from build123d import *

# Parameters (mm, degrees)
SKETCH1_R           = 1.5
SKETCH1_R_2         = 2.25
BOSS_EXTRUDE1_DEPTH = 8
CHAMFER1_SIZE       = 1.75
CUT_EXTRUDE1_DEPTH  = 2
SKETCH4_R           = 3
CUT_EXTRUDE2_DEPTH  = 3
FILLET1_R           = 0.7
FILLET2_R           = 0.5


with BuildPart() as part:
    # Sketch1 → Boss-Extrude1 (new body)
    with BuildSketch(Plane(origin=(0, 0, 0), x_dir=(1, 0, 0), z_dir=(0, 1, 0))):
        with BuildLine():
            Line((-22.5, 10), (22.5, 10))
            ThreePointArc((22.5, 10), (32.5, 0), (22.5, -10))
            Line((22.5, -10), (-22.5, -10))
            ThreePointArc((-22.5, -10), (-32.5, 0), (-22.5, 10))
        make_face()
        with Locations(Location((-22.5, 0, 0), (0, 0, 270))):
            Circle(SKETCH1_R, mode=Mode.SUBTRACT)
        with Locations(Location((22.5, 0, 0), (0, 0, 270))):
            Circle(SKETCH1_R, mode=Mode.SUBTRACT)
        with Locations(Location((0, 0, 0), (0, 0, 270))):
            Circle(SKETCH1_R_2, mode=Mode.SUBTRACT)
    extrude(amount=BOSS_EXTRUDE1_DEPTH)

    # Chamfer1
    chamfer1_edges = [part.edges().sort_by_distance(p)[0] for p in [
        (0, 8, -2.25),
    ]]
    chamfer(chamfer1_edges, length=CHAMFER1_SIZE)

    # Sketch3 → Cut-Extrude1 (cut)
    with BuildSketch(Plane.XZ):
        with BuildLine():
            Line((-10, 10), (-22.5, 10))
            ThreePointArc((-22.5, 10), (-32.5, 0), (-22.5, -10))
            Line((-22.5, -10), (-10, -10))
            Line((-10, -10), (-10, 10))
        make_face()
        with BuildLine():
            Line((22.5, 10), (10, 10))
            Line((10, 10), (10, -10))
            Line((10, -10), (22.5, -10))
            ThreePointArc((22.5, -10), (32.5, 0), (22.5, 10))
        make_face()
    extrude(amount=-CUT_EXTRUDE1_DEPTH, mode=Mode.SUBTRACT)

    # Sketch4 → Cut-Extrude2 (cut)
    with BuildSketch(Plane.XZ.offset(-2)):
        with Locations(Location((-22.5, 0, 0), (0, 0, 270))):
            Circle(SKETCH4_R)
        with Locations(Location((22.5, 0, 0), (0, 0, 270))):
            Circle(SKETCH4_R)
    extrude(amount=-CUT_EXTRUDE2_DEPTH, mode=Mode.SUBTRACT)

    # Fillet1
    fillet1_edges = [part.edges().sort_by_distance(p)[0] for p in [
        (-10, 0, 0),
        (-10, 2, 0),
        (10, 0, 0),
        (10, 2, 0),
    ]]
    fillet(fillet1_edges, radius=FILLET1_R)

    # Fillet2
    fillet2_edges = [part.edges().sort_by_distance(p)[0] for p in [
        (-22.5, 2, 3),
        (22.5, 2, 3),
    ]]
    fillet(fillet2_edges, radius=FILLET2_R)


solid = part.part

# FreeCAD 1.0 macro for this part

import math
import FreeCAD as App
import Part
import Sketcher

V = App.Vector
Q = App.Units.Quantity


def edges_at(feature, points):
    """Names of the edges that pass closest to the given points."""
    edges = feature.Shape.Edges
    near = lambda p: min(range(len(edges)), key=lambda i: edges[i].distToShape(Part.Vertex(*p))[0])
    return sorted({f"Edge{near(p) + 1}" for p in points})

doc = App.newDocument("Part")
body = doc.addObject("PartDesign::Body", "Body")

# Sketch on XZ plane
sketch1 = body.newObject("Sketcher::SketchObject", "Sketch")
sketch1.AttachmentSupport = (doc.getObject("XZ_Plane"), [""])
sketch1.MapMode = "FlatFace"
sketch1.addGeometry(Part.LineSegment(V(22.5, -10, 0), V(-22.5, -10, 0)), False)
sketch1.addGeometry(Part.ArcOfCircle(Part.Circle(V(-22.5, 0, 0), V(0, 0, 1), 10), math.radians(90), math.radians(270)), False)
sketch1.addGeometry(Part.LineSegment(V(-22.5, 10, 0), V(22.5, 10, 0)), False)
sketch1.addGeometry(Part.ArcOfCircle(Part.Circle(V(22.5, 0, 0), V(0, 0, 1), 10), math.radians(-90), math.radians(90)), False)
sketch1.addGeometry(Part.Circle(V(22.5, 0, 0), V(0, 0, 1), 1.5), False)
sketch1.addGeometry(Part.Circle(V(0, 0, 0), V(0, 0, 1), 2.25), False)
sketch1.addGeometry(Part.Circle(V(-22.5, 0, 0), V(0, 0, 1), 1.5), False)
sketch1.addConstraint(Sketcher.Constraint("Tangent", 0, 2, 1, 2))
sketch1.addConstraint(Sketcher.Constraint("Tangent", 1, 1, 2, 1))
sketch1.addConstraint(Sketcher.Constraint("Tangent", 2, 2, 3, 2))
sketch1.addConstraint(Sketcher.Constraint("Tangent", 3, 1, 0, 1))
sketch1.addConstraint(Sketcher.Constraint("Horizontal", 0))
sketch1.addConstraint(Sketcher.Constraint("Horizontal", 2))
sketch1.addConstraint(Sketcher.Constraint("Coincident", 5, 3, -1, 1))
sketch1.addConstraint(Sketcher.Constraint("Coincident", 4, 3, 3, 3))
sketch1.addConstraint(Sketcher.Constraint("Coincident", 6, 3, 1, 3))
sketch1.addConstraint(Sketcher.Constraint("Equal", 4, 6))
sketch1.addConstraint(Sketcher.Constraint("Symmetric", 1, 3, 3, 3, -1, 1))
sketch1.addConstraint(Sketcher.Constraint("Diameter", 4, Q("3 mm")))
sketch1.addConstraint(Sketcher.Constraint("Radius", 1, Q("10 mm")))
sketch1.addConstraint(Sketcher.Constraint("Diameter", 5, Q("4.5 mm")))
sketch1.addConstraint(Sketcher.Constraint("DistanceX", 0, 2, 0, 1, Q("45 mm")))
pad1 = body.newObject("PartDesign::Pad", "Pad")
pad1.Profile = sketch1
pad1.Length = 8
pad1.Reversed = True
doc.recompute()

chamfer = body.newObject("PartDesign::Chamfer", "Chamfer")
chamfer.Base = (pad1, edges_at(pad1, [(0, 8, -2.25)]))
chamfer.Size = 1.75

# Sketch on XZ plane
sketch2 = body.newObject("Sketcher::SketchObject", "Sketch001")
sketch2.AttachmentSupport = (doc.getObject("XZ_Plane"), [""])
sketch2.MapMode = "FlatFace"
sketch2.addGeometry(Part.LineSegment(V(-10, 10, 0), V(-22.5, 10, 0)), False)
sketch2.addGeometry(Part.ArcOfCircle(Part.Circle(V(-22.5, 0, 0), V(0, 0, 1), 10), math.radians(90), math.radians(270)), False)
sketch2.addGeometry(Part.LineSegment(V(-22.5, -10, 0), V(-10, -10, 0)), False)
sketch2.addGeometry(Part.LineSegment(V(-10, -10, 0), V(-10, 10, 0)), False)
sketch2.addGeometry(Part.LineSegment(V(22.5, 10, 0), V(10, 10, 0)), False)
sketch2.addGeometry(Part.LineSegment(V(10, 10, 0), V(10, -10, 0)), False)
sketch2.addGeometry(Part.LineSegment(V(10, -10, 0), V(22.5, -10, 0)), False)
sketch2.addGeometry(Part.ArcOfCircle(Part.Circle(V(22.5, 0, 0), V(0, 0, 1), 10), math.radians(-90), math.radians(90)), False)
sketch2.addConstraint(Sketcher.Constraint("Tangent", 0, 2, 1, 1))
sketch2.addConstraint(Sketcher.Constraint("Tangent", 1, 2, 2, 1))
sketch2.addConstraint(Sketcher.Constraint("Coincident", 2, 2, 3, 1))
sketch2.addConstraint(Sketcher.Constraint("Coincident", 3, 2, 0, 1))
sketch2.addConstraint(Sketcher.Constraint("Coincident", 4, 2, 5, 1))
sketch2.addConstraint(Sketcher.Constraint("Coincident", 5, 2, 6, 1))
sketch2.addConstraint(Sketcher.Constraint("Tangent", 6, 2, 7, 1))
sketch2.addConstraint(Sketcher.Constraint("Tangent", 7, 2, 4, 1))
sketch2.addConstraint(Sketcher.Constraint("Horizontal", 0))
sketch2.addConstraint(Sketcher.Constraint("Horizontal", 2))
sketch2.addConstraint(Sketcher.Constraint("Vertical", 3))
sketch2.addConstraint(Sketcher.Constraint("Horizontal", 4))
sketch2.addConstraint(Sketcher.Constraint("Vertical", 5))
sketch2.addConstraint(Sketcher.Constraint("Horizontal", 6))
sketch2.addConstraint(Sketcher.Constraint("Equal", 1, 7))
sketch2.addConstraint(Sketcher.Constraint("Symmetric", 1, 3, 7, 3, -1, 1))
sketch2.addConstraint(Sketcher.Constraint("Symmetric", 3, 2, 4, 2, -2))
sketch2.addConstraint(Sketcher.Constraint("Radius", 1, Q("10 mm")))
sketch2.addConstraint(Sketcher.Constraint("DistanceX", 0, 2, 0, 1, Q("12.5 mm")))
sketch2.addConstraint(Sketcher.Constraint("DistanceX", 2, 2, -1, 1, Q("10 mm")))
pocket1 = body.newObject("PartDesign::Pocket", "Pocket")
pocket1.Profile = sketch2
pocket1.Length = 2

# Sketch on XZ plane
sketch3 = body.newObject("Sketcher::SketchObject", "Sketch002")
sketch3.AttachmentSupport = (doc.getObject("XZ_Plane"), [""])
sketch3.MapMode = "FlatFace"
sketch3.AttachmentOffset = App.Placement(V(0, 0, -2), App.Rotation())
sketch3.addGeometry(Part.Circle(V(-22.5, 0, 0), V(0, 0, 1), 3), False)
sketch3.addGeometry(Part.Circle(V(22.5, 0, 0), V(0, 0, 1), 3), False)
sketch3.addConstraint(Sketcher.Constraint("Equal", 0, 1))
sketch3.addConstraint(Sketcher.Constraint("Symmetric", 0, 3, 1, 3, -1, 1))
sketch3.addConstraint(Sketcher.Constraint("PointOnObject", 0, 3, -1))
sketch3.addConstraint(Sketcher.Constraint("Diameter", 0, Q("6 mm")))
sketch3.addConstraint(Sketcher.Constraint("DistanceX", 0, 3, 1, 3, Q("45 mm")))
pocket2 = body.newObject("PartDesign::Pocket", "Pocket001")
pocket2.Profile = sketch3
pocket2.Length = 3
doc.recompute()

fillet = body.newObject("PartDesign::Fillet", "Fillet")
fillet.Base = (pocket2, edges_at(pocket2, [
    (-10, 0, 0),
    (-10, 2, 0),
    (10, 0, 0),
    (10, 2, 0),
]))
fillet.Radius = 0.7
doc.recompute()

fillet2 = body.newObject("PartDesign::Fillet", "Fillet001")
fillet2.Base = (fillet, edges_at(fillet, [(-22.5, 2, 3), (22.5, 2, 3)]))
fillet2.Radius = 0.5

doc.recompute()
